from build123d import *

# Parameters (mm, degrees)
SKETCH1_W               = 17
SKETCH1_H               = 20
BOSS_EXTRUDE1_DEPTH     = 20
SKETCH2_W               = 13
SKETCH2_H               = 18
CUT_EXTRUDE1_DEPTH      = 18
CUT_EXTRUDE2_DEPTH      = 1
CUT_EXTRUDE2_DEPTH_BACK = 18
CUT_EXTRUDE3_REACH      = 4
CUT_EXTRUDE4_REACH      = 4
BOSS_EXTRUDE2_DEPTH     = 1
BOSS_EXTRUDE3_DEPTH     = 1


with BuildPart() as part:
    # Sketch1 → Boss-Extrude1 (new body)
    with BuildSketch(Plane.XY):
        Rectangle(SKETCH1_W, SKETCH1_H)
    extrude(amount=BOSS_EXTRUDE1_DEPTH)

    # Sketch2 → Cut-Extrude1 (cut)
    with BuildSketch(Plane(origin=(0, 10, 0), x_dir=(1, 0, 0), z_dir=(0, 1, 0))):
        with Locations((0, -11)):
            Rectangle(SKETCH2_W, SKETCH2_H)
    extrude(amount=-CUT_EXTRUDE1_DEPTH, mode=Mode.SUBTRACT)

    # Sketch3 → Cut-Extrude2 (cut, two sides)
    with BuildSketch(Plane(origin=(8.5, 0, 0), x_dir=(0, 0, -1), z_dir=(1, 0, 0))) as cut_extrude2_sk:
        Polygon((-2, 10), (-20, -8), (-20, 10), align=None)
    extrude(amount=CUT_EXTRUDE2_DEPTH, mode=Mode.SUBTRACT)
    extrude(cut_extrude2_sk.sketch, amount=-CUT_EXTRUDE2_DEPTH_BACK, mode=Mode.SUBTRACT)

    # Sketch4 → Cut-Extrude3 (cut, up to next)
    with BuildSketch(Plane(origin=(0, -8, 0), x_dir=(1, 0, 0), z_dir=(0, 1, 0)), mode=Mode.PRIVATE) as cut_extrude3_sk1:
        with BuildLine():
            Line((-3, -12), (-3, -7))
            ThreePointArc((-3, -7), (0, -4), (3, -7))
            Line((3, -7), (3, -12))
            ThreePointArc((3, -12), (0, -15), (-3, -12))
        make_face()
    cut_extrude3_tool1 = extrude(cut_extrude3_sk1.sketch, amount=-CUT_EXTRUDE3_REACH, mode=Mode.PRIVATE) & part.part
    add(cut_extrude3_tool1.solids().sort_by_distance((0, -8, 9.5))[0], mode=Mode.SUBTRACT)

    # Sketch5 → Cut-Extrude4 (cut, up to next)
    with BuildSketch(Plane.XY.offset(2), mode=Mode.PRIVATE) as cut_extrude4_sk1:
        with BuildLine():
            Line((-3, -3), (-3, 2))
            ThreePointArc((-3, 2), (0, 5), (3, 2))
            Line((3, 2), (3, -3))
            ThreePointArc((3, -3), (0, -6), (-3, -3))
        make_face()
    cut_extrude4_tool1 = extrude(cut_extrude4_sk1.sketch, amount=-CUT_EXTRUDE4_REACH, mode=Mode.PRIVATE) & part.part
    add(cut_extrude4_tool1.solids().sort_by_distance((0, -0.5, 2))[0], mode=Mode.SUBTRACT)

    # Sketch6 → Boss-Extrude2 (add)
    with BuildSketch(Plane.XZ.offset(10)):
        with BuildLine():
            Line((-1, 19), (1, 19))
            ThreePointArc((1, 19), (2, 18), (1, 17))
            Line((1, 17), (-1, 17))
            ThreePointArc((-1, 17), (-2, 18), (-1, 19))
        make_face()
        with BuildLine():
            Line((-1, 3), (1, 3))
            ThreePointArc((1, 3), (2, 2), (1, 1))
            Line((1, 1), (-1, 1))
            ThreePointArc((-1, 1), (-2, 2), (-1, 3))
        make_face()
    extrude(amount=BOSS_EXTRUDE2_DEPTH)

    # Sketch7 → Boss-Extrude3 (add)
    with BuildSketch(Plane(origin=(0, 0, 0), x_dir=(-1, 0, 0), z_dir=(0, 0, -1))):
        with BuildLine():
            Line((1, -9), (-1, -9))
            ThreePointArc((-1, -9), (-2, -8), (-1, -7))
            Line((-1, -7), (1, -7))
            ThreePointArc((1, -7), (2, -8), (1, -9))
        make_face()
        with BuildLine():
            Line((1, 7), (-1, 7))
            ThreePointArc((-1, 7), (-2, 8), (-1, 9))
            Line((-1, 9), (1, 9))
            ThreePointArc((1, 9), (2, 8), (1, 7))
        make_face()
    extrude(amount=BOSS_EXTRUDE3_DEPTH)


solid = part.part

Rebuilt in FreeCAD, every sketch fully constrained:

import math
import FreeCAD as App
import Part
import Sketcher
from FreeCAD import Vector


def add_polygon(sketch, points):
    """Adds a closed chain of lines whose ends are joined by coincident constraints."""
    first, n = sketch.GeometryCount, len(points)
    for a, b in zip(points, points[1:] + points[:1]):
        sketch.addGeometry(Part.LineSegment(App.Vector(*a, 0), App.Vector(*b, 0)), False)
    for i in range(n):
        sketch.addConstraint(Sketcher.Constraint("Coincident", first + i, 2, first + (i + 1) % n, 1))

doc = App.newDocument("Part")
params = doc.addObject("Spreadsheet::Sheet", "Params")
for row, (alias, value) in enumerate([
    ("sketch1_width", "17 mm"),
    ("sketch1_height", "20 mm"),
    ("pad1_length", "20 mm"),
    ("sketch2_width", "13 mm"),
    ("sketch2_height", "18 mm"),
    ("pocket1_length", "18 mm"),
    ("sketch3_width", "18 mm"),
    ("sketch4_radius", "3 mm"),
    ("sketch4_height", "5 mm"),
    ("sketch5_radius", "3 mm"),
    ("sketch5_height", "5 mm"),
    ("sketch6_radius", "1 mm"),
    ("sketch6_width", "2 mm"),
    ("pad2_length", "1 mm"),
    ("sketch7_radius", "1 mm"),
    ("sketch7_width", "2 mm"),
    ("pad3_length", "1 mm"),
], start=1):
    params.set(f"A{row}", alias)
    params.set(f"B{row}", "=" + value)
    params.setAlias(f"B{row}", alias)

body = doc.addObject("PartDesign::Body", "Body")

# Sketch on XY plane
sketch1 = body.newObject("Sketcher::SketchObject", "Sketch")
sketch1.AttachmentSupport = (doc.getObject("XY_Plane"), [""])
sketch1.MapMode = "FlatFace"
add_polygon(sketch1, [(-8, 10), (-8, -10), (8, -10), (8, 10)])  # lines 0-3
sketch1.addConstraint([
    Sketcher.Constraint("Vertical", 0),
    Sketcher.Constraint("Horizontal", 1),
    Sketcher.Constraint("Vertical", 2),
    Sketcher.Constraint("Horizontal", 3),
    Sketcher.Constraint("Symmetric", 0, 2, 2, 2, -1, 1),
    Sketcher.Constraint("DistanceX", 1, 1, 1, 2, 17.0),
    Sketcher.Constraint("DistanceY", 0, 2, 0, 1, 20.0),
])
sketch1.setExpression("Constraints[9]", "Params.sketch1_width")
sketch1.setExpression("Constraints[10]", "Params.sketch1_height")
pad1 = body.newObject("PartDesign::Pad", "Pad")
pad1.Profile = sketch1
pad1.setExpression("Length", "Params.pad1_length")

# Sketch on XZ plane
sketch2 = body.newObject("Sketcher::SketchObject", "Sketch001")
sketch2.AttachmentSupport = (doc.getObject("XZ_Plane"), [""])
sketch2.MapMode = "FlatFace"
sketch2.AttachmentOffset = App.Placement(Vector(0, 0, -10), App.Rotation())
add_polygon(sketch2, [(-6, 2), (-6, 20), (6, 20), (6, 2)])  # lines 0-3
sketch2.addConstraint([
    Sketcher.Constraint("Vertical", 0),
    Sketcher.Constraint("Horizontal", 1),
    Sketcher.Constraint("Vertical", 2),
    Sketcher.Constraint("Horizontal", 3),
    Sketcher.Constraint("DistanceX", 1, 1, 1, 2, 13.0),
    Sketcher.Constraint("DistanceY", 0, 1, 0, 2, 18.0),
    Sketcher.Constraint("DistanceY", -1, 1, 0, 2, 20.0),
    Sketcher.Constraint("DistanceX", 0, 2, -1, 1, 6.5),
])
sketch2.setExpression("Constraints[8]", "Params.sketch2_width")
sketch2.setExpression("Constraints[9]", "Params.sketch2_height")
pocket1 = body.newObject("PartDesign::Pocket", "Pocket")
pocket1.Profile = sketch2
pocket1.setExpression("Length", "Params.pocket1_length")
pocket1.Reversed = True

# Sketch on YZ plane
sketch3 = body.newObject("Sketcher::SketchObject", "Sketch002")
sketch3.AttachmentSupport = (doc.getObject("YZ_Plane"), [""])
sketch3.MapMode = "FlatFace"
sketch3.AttachmentOffset = App.Placement(Vector(0, 0, 8.5), App.Rotation())
add_polygon(sketch3, [(-8, 20), (10, 2), (10, 20)])  # lines 0-2
sketch3.addConstraint([
    Sketcher.Constraint("Vertical", 1),
    Sketcher.Constraint("Horizontal", 2),
    Sketcher.Constraint("Equal", 2, 1),
    Sketcher.Constraint("DistanceX", 2, 2, 2, 1, 18.0),
    Sketcher.Constraint("DistanceX", -1, 1, 0, 2, 10.0),
    Sketcher.Constraint("DistanceY", -1, 1, 0, 2, 2.0),
])
sketch3.setExpression("Constraints[6]", "Params.sketch3_width")
pocket2 = body.newObject("PartDesign::Pocket", "Pocket001")
pocket2.Profile = sketch3
pocket2.Type = "ThroughAll"
pocket2.Midplane = True

# Sketch on XZ plane
sketch4 = body.newObject("Sketcher::SketchObject", "Sketch003")
sketch4.AttachmentSupport = (doc.getObject("XZ_Plane"), [""])
sketch4.MapMode = "FlatFace"
sketch4.AttachmentOffset = App.Placement(Vector(0, 0, 8), App.Rotation())
sketch4.addGeometry([
    Part.LineSegment(Vector(-3, 7, 0), Vector(-3, 12, 0)),
    Part.ArcOfCircle(Part.Circle(Vector(0, 12, 0), Vector(0, 0, 1), 3), math.radians(0), math.radians(180)),
    Part.LineSegment(Vector(3, 12, 0), Vector(3, 7, 0)),
    Part.ArcOfCircle(Part.Circle(Vector(0, 7, 0), Vector(0, 0, 1), 3), math.radians(180), math.radians(360)),
], False)
sketch4.addConstraint([
    Sketcher.Constraint("Tangent", 0, 2, 1, 2),
    Sketcher.Constraint("Tangent", 1, 1, 2, 1),
    Sketcher.Constraint("Tangent", 2, 2, 3, 2),
    Sketcher.Constraint("Tangent", 3, 1, 0, 1),
    Sketcher.Constraint("Vertical", 0),
    Sketcher.Constraint("Vertical", 2),
    Sketcher.Constraint("PointOnObject", 1, 3, -2),
    Sketcher.Constraint("Radius", 1, 3.0),
    Sketcher.Constraint("DistanceY", 0, 1, 0, 2, 5.0),
    Sketcher.Constraint("DistanceY", -1, 1, 1, 3, 12.0),
])
sketch4.setExpression("Constraints[7]", "Params.sketch4_radius")
sketch4.setExpression("Constraints[8]", "Params.sketch4_height")
pocket3 = body.newObject("PartDesign::Pocket", "Pocket002")
pocket3.Profile = sketch4
pocket3.Type = "UpToFirst"
pocket3.Reversed = True

# Sketch on XY plane
sketch5 = body.newObject("Sketcher::SketchObject", "Sketch004")
sketch5.AttachmentSupport = (doc.getObject("XY_Plane"), [""])
sketch5.MapMode = "FlatFace"
sketch5.AttachmentOffset = App.Placement(Vector(0, 0, 2), App.Rotation())
sketch5.addGeometry([
    Part.LineSegment(Vector(-3, 2, 0), Vector(-3, -3, 0)),
    Part.ArcOfCircle(Part.Circle(Vector(0, -3, 0), Vector(0, 0, 1), 3), math.radians(180), math.radians(360)),
    Part.LineSegment(Vector(3, -3, 0), Vector(3, 2, 0)),
    Part.ArcOfCircle(Part.Circle(Vector(0, 2, 0), Vector(0, 0, 1), 3), math.radians(0), math.radians(180)),
], False)
sketch5.addConstraint([
    Sketcher.Constraint("Tangent", 0, 2, 1, 1),
    Sketcher.Constraint("Tangent", 1, 2, 2, 1),
    Sketcher.Constraint("Tangent", 2, 2, 3, 1),
    Sketcher.Constraint("Tangent", 3, 2, 0, 1),
    Sketcher.Constraint("Vertical", 0),
    Sketcher.Constraint("Vertical", 2),
    Sketcher.Constraint("PointOnObject", 1, 3, -2),
    Sketcher.Constraint("Radius", 1, 3.0),
    Sketcher.Constraint("DistanceY", 0, 2, 0, 1, 5.0),
    Sketcher.Constraint("DistanceY", 1, 3, -1, 1, 3.0),
])
sketch5.setExpression("Constraints[7]", "Params.sketch5_radius")
sketch5.setExpression("Constraints[8]", "Params.sketch5_height")
pocket4 = body.newObject("PartDesign::Pocket", "Pocket003")
pocket4.Profile = sketch5
pocket4.Type = "UpToFirst"

# Sketch on XZ plane
sketch6 = body.newObject("Sketcher::SketchObject", "Sketch005")
sketch6.AttachmentSupport = (doc.getObject("XZ_Plane"), [""])
sketch6.MapMode = "FlatFace"
sketch6.AttachmentOffset = App.Placement(Vector(0, 0, 10), App.Rotation())
sketch6.addGeometry([
    Part.LineSegment(Vector(1, 19, 0), Vector(-1, 19, 0)),  # 0
    Part.ArcOfCircle(Part.Circle(Vector(-1, 18, 0), Vector(0, 0, 1), 1), math.radians(90), math.radians(270)),  # 1
    Part.LineSegment(Vector(-1, 17, 0), Vector(1, 17, 0)),  # 2
    Part.ArcOfCircle(Part.Circle(Vector(1, 18, 0), Vector(0, 0, 1), 1), math.radians(-90), math.radians(90)),  # 3
    Part.LineSegment(Vector(1, 3, 0), Vector(-1, 3, 0)),  # 4
    Part.ArcOfCircle(Part.Circle(Vector(-1, 2, 0), Vector(0, 0, 1), 1), math.radians(90), math.radians(270)),  # 5
    Part.LineSegment(Vector(-1, 1, 0), Vector(1, 1, 0)),  # 6
    Part.ArcOfCircle(Part.Circle(Vector(1, 2, 0), Vector(0, 0, 1), 1), math.radians(-90), math.radians(90)),  # 7
], False)
sketch6.addConstraint([
    Sketcher.Constraint("Tangent", 0, 2, 1, 1),
    Sketcher.Constraint("Tangent", 1, 2, 2, 1),
    Sketcher.Constraint("Tangent", 2, 2, 3, 1),
    Sketcher.Constraint("Tangent", 3, 2, 0, 1),
    Sketcher.Constraint("Tangent", 4, 2, 5, 1),
    Sketcher.Constraint("Tangent", 5, 2, 6, 1),
    Sketcher.Constraint("Tangent", 6, 2, 7, 1),
    Sketcher.Constraint("Tangent", 7, 2, 4, 1),
    Sketcher.Constraint("Horizontal", 0),
    Sketcher.Constraint("Horizontal", 2),
    Sketcher.Constraint("Horizontal", 4),
    Sketcher.Constraint("Horizontal", 6),
    Sketcher.Constraint("Equal", 3, 5),
    Sketcher.Constraint("Vertical", 1, 3, 5, 3),
    Sketcher.Constraint("Vertical", 3, 3, 7, 3),
    Sketcher.Constraint("Radius", 1, 1.0),
    Sketcher.Constraint("DistanceX", 0, 2, 0, 1, 2.0),
    Sketcher.Constraint("DistanceX", 1, 3, -1, 1, 1.0),
    Sketcher.Constraint("DistanceY", -1, 1, 1, 3, 18.0),
    Sketcher.Constraint("DistanceY", -1, 1, 5, 3, 2.0),
])
sketch6.setExpression("Constraints[15]", "Params.sketch6_radius")
sketch6.setExpression("Constraints[16]", "Params.sketch6_width")
pad2 = body.newObject("PartDesign::Pad", "Pad001")
pad2.Profile = sketch6
pad2.setExpression("Length", "Params.pad2_length")

# Sketch on XY plane
sketch7 = body.newObject("Sketcher::SketchObject", "Sketch006")
sketch7.AttachmentSupport = (doc.getObject("XY_Plane"), [""])
sketch7.MapMode = "FlatFace"
sketch7.addGeometry([
    Part.LineSegment(Vector(1, -9, 0), Vector(-1, -9, 0)),  # 0
    Part.ArcOfCircle(Part.Circle(Vector(-1, -8, 0), Vector(0, 0, 1), 1), math.radians(90), math.radians(270)),  # 1
    Part.LineSegment(Vector(-1, -7, 0), Vector(1, -7, 0)),  # 2
    Part.ArcOfCircle(Part.Circle(Vector(1, -8, 0), Vector(0, 0, 1), 1), math.radians(-90), math.radians(90)),  # 3
    Part.LineSegment(Vector(1, 7, 0), Vector(-1, 7, 0)),  # 4
    Part.ArcOfCircle(Part.Circle(Vector(-1, 8, 0), Vector(0, 0, 1), 1), math.radians(90), math.radians(270)),  # 5
    Part.LineSegment(Vector(-1, 9, 0), Vector(1, 9, 0)),  # 6
    Part.ArcOfCircle(Part.Circle(Vector(1, 8, 0), Vector(0, 0, 1), 1), math.radians(-90), math.radians(90)),  # 7
], False)
sketch7.addConstraint([
    Sketcher.Constraint("Tangent", 0, 2, 1, 2),
    Sketcher.Constraint("Tangent", 1, 1, 2, 1),
    Sketcher.Constraint("Tangent", 2, 2, 3, 2),
    Sketcher.Constraint("Tangent", 3, 1, 0, 1),
    Sketcher.Constraint("Tangent", 4, 2, 5, 2),
    Sketcher.Constraint("Tangent", 5, 1, 6, 1),
    Sketcher.Constraint("Tangent", 6, 2, 7, 2),
    Sketcher.Constraint("Tangent", 7, 1, 4, 1),
    Sketcher.Constraint("Horizontal", 0),
    Sketcher.Constraint("Horizontal", 2),
    Sketcher.Constraint("Horizontal", 4),
    Sketcher.Constraint("Horizontal", 6),
    Sketcher.Constraint("Equal", 3, 5),
    Sketcher.Constraint("Symmetric", 3, 3, 5, 3, -1, 1),
    Sketcher.Constraint("Vertical", 1, 3, 5, 3),
    Sketcher.Constraint("Vertical", 3, 3, 7, 3),
    Sketcher.Constraint("Radius", 1, 1.0),
    Sketcher.Constraint("DistanceX", 0, 2, 0, 1, 2.0),
    Sketcher.Constraint("DistanceY", 1, 3, -1, 1, 8.0),
])
sketch7.setExpression("Constraints[16]", "Params.sketch7_radius")
sketch7.setExpression("Constraints[17]", "Params.sketch7_width")
pad3 = body.newObject("PartDesign::Pad", "Pad002")
pad3.Profile = sketch7
pad3.setExpression("Length", "Params.pad3_length")
pad3.Reversed = True

doc.recompute()
